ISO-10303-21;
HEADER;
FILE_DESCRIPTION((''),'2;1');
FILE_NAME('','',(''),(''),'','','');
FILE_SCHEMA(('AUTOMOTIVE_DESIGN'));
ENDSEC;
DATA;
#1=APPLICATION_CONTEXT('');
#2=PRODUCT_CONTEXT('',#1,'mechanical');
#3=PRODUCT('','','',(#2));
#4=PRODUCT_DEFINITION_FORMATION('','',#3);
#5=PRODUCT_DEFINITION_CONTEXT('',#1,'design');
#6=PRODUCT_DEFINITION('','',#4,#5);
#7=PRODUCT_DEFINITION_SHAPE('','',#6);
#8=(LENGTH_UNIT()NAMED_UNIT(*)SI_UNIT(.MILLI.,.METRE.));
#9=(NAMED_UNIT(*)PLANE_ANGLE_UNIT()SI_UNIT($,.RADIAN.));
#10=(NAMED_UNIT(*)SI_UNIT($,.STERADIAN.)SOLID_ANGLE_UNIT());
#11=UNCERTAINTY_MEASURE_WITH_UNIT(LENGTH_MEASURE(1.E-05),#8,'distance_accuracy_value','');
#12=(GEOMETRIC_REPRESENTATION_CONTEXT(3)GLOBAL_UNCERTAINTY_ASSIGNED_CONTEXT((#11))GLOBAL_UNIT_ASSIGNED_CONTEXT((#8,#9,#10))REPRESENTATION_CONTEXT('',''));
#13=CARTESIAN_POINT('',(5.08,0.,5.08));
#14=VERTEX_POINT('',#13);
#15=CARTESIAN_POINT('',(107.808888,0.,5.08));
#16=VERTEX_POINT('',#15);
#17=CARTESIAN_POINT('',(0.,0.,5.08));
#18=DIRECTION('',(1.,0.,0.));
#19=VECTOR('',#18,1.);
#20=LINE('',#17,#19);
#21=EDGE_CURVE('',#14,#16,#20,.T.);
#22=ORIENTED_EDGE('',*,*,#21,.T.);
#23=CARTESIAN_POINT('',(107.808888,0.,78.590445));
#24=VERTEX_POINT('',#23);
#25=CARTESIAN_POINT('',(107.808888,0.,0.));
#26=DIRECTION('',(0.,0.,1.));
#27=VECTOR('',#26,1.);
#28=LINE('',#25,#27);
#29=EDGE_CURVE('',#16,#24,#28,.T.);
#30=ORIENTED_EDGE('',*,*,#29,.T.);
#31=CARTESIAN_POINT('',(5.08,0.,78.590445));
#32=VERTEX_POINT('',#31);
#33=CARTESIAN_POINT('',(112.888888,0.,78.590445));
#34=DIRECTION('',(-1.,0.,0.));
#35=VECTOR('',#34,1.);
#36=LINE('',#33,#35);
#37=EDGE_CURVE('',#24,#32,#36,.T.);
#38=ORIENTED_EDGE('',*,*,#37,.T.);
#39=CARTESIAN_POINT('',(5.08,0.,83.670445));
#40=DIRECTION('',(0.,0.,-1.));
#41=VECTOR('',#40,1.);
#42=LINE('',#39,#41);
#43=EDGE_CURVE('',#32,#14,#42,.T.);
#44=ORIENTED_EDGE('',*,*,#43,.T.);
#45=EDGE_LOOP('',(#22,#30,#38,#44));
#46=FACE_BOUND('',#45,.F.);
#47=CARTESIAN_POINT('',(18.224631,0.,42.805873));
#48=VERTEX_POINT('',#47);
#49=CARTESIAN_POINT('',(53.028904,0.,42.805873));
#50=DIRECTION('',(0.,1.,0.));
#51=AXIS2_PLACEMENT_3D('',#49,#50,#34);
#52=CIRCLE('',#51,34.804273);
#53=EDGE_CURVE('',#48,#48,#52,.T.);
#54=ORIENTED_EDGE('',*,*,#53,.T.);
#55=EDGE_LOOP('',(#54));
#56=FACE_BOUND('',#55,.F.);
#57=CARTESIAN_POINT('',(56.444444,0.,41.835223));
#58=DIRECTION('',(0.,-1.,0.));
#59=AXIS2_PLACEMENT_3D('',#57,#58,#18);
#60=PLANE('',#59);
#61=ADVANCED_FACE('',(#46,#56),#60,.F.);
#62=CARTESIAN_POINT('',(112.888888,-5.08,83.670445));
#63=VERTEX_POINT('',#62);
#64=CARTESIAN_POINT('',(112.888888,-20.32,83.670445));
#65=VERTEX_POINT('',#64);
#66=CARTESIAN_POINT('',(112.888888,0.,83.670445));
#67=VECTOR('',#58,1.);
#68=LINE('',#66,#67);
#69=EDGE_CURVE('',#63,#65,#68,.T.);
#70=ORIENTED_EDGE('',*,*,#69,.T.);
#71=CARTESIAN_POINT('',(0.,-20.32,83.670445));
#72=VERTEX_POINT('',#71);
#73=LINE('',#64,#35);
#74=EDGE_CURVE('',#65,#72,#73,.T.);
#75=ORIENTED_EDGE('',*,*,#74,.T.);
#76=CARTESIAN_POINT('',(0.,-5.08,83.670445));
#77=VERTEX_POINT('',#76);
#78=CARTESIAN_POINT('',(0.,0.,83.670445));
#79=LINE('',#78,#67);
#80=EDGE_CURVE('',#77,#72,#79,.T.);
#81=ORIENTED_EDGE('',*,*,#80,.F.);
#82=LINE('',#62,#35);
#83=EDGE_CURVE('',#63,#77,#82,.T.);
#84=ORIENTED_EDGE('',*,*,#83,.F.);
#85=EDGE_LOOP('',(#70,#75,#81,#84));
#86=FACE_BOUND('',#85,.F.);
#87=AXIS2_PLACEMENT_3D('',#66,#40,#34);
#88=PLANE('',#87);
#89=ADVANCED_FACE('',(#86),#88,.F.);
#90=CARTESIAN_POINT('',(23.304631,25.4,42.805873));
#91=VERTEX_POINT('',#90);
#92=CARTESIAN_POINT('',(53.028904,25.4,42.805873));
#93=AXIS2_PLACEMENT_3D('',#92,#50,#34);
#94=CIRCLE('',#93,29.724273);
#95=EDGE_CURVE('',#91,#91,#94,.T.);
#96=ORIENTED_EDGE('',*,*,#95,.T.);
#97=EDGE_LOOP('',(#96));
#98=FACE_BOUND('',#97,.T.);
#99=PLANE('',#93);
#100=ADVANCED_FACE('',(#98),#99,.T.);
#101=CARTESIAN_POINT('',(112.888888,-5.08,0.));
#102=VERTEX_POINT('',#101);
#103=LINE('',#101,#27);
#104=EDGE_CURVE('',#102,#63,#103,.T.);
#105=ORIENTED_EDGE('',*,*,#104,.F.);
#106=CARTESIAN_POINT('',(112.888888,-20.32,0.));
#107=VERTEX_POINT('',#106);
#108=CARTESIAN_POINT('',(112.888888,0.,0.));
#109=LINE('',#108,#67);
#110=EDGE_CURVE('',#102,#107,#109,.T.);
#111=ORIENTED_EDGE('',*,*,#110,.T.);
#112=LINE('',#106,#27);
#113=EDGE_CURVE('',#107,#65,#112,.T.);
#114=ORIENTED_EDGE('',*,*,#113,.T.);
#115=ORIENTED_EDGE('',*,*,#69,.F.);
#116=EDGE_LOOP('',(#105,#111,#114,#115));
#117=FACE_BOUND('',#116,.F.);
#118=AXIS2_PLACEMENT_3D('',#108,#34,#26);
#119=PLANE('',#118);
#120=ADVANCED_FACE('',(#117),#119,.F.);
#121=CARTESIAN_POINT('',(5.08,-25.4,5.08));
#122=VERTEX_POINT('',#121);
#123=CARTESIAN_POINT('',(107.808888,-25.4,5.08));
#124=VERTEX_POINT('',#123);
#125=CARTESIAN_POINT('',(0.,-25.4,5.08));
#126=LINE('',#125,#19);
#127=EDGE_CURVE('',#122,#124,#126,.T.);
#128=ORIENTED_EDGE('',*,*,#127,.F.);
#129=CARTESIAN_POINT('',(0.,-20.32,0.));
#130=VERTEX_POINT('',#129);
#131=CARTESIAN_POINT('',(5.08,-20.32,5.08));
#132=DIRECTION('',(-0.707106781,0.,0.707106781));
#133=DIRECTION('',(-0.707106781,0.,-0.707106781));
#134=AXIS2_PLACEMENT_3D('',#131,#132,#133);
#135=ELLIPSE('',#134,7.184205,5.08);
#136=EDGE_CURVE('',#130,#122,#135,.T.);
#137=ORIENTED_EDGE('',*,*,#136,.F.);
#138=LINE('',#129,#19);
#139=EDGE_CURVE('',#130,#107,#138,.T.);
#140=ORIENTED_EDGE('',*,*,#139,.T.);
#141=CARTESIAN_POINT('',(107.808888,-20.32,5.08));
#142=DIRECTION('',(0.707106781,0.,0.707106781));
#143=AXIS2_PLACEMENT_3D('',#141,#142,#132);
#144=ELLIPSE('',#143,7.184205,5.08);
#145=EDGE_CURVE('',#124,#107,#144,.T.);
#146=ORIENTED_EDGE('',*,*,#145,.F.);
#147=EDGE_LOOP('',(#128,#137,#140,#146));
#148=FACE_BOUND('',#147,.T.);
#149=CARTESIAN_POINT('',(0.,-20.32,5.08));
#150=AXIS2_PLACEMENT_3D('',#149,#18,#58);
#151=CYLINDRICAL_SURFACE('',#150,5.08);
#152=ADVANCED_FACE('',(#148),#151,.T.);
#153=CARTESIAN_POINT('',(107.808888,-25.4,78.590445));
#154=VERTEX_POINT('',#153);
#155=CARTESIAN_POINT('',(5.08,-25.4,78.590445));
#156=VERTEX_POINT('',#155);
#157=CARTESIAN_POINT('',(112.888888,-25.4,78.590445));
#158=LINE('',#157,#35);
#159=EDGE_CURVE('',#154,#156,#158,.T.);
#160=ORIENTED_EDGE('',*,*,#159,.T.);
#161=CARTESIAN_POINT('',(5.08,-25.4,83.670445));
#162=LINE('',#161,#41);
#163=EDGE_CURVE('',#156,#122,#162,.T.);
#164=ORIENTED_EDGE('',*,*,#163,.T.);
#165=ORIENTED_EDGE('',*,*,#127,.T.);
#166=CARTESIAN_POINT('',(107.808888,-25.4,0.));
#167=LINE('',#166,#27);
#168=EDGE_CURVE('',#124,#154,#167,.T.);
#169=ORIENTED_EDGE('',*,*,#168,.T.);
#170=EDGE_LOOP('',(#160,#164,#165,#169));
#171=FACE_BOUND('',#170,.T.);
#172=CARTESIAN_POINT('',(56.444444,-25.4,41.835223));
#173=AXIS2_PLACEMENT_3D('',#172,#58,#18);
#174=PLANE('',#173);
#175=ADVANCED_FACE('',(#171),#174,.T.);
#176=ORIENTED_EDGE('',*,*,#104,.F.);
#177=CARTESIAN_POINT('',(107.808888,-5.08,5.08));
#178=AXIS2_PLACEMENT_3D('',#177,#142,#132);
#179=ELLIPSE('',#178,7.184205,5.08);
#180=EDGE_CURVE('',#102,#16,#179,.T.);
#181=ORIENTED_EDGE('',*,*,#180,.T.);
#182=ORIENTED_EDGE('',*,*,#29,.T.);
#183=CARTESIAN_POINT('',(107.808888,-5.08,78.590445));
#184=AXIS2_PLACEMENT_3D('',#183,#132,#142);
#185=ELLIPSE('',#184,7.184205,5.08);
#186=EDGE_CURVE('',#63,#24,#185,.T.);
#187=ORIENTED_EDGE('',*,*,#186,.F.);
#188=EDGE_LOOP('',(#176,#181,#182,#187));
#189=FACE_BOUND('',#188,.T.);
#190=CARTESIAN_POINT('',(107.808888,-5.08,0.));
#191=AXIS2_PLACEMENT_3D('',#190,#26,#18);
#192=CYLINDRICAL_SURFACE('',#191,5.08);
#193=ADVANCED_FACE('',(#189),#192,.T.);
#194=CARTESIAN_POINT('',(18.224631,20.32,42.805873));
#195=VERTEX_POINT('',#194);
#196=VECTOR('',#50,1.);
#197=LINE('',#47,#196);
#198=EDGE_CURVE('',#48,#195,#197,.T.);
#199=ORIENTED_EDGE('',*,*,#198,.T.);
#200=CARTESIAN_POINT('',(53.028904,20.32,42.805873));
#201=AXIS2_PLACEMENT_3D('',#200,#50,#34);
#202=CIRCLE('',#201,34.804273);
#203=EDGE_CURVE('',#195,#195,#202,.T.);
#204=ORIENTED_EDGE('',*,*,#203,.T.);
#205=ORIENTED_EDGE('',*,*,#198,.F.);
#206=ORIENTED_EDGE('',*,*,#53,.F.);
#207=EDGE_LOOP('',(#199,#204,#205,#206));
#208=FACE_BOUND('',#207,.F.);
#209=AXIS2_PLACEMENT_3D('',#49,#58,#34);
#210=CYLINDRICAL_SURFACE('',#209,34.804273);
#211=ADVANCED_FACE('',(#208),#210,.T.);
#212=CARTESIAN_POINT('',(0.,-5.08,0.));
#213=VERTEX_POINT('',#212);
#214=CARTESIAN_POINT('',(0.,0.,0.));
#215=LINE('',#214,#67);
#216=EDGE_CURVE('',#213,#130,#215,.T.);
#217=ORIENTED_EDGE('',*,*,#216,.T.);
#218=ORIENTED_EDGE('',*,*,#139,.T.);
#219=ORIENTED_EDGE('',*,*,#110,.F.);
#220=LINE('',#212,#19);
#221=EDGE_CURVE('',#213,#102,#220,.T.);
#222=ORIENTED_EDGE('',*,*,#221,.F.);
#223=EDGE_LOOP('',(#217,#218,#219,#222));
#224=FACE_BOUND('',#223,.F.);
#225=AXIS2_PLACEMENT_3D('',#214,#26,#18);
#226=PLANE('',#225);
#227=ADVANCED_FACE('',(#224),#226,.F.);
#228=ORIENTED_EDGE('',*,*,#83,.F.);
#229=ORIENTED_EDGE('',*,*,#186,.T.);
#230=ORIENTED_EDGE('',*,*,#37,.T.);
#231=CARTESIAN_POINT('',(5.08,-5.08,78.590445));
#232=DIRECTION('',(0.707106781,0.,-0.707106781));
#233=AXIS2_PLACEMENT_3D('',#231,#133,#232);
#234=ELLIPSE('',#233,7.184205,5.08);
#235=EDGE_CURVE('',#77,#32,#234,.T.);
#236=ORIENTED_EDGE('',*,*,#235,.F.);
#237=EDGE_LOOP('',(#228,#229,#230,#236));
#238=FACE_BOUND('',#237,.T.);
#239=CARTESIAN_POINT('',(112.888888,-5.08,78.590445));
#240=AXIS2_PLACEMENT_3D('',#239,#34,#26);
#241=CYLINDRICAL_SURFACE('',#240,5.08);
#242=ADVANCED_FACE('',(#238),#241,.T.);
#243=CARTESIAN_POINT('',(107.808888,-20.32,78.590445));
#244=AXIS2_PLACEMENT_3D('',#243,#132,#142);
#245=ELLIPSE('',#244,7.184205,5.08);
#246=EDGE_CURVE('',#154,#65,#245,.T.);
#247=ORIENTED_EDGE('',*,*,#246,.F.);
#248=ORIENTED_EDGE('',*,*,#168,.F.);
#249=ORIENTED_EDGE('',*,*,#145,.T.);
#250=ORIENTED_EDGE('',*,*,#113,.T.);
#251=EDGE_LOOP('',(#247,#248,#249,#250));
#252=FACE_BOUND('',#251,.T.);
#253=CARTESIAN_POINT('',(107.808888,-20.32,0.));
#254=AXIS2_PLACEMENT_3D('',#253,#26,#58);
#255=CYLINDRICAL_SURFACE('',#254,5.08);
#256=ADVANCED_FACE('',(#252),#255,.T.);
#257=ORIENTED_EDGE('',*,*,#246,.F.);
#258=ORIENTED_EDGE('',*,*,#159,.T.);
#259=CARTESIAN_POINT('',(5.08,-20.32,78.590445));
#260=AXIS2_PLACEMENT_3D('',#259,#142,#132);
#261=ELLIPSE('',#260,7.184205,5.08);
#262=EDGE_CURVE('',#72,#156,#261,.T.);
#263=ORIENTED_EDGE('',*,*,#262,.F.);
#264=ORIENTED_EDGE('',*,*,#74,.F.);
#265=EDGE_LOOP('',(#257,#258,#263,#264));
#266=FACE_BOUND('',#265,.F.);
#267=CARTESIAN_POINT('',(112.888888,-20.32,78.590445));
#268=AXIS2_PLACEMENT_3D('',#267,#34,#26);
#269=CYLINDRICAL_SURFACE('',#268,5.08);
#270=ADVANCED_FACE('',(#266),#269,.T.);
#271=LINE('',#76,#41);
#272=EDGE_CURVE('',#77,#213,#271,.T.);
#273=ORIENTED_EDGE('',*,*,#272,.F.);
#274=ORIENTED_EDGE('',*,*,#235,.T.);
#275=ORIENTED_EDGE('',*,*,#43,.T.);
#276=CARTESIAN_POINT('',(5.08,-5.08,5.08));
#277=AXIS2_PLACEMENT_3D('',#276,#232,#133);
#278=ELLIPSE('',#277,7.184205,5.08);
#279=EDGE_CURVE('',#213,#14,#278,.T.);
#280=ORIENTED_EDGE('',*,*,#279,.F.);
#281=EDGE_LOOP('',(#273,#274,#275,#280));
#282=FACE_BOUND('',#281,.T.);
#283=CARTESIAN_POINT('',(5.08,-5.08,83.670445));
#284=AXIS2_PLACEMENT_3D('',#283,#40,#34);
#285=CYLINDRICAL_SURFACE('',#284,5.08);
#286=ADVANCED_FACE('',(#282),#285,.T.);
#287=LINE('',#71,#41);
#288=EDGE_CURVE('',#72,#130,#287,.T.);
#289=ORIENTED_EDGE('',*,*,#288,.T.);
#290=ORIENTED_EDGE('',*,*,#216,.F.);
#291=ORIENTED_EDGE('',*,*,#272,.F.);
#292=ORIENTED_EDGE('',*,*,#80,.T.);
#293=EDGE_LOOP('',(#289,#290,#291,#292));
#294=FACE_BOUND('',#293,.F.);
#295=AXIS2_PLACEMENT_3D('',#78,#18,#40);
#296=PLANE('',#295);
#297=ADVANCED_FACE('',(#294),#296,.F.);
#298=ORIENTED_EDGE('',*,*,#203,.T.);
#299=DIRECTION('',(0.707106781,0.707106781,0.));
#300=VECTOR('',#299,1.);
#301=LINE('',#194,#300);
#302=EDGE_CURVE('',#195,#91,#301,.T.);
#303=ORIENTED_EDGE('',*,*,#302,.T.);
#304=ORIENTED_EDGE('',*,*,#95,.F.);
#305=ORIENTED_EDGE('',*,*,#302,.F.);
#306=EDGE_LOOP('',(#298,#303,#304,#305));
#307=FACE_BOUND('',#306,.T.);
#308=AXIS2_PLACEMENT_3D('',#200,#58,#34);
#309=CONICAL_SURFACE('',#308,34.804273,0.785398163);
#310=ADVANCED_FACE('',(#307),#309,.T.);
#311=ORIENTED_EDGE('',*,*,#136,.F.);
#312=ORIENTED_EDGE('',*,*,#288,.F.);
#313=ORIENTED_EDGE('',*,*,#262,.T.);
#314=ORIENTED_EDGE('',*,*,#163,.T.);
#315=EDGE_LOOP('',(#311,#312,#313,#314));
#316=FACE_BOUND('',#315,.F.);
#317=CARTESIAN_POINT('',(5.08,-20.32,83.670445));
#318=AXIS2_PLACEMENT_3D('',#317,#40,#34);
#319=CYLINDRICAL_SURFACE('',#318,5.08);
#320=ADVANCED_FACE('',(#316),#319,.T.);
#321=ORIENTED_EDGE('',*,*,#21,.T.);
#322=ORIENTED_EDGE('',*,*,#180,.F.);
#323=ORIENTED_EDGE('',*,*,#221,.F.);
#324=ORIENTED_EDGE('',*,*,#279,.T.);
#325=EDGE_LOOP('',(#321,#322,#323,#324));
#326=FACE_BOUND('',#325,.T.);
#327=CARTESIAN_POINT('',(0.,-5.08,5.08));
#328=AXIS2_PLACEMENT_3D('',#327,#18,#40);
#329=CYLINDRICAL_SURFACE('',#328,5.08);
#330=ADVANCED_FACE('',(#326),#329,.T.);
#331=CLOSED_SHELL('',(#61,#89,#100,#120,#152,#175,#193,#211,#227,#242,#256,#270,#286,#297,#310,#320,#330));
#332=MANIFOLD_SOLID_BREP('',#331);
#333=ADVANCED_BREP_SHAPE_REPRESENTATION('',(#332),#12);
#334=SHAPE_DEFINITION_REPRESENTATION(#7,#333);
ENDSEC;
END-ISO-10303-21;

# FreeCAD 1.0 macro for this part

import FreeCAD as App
import Part
import Sketcher
from FreeCAD import Vector
Q = App.Units.Quantity


def edges_at(feature, points):
    """Names of the edges that pass closest to the given points."""
    edges = feature.Shape.Edges
    near = lambda p: min(range(len(edges)), key=lambda i: edges[i].distToShape(Part.Vertex(*p))[0])
    return sorted({f"Edge{near(p) + 1}" for p in points})


def add_polygon(sketch, points):
    """Adds a closed chain of lines whose ends are joined by coincident constraints."""
    first, n = sketch.GeometryCount, len(points)
    for a, b in zip(points, points[1:] + points[:1]):
        sketch.addGeometry(Part.LineSegment(App.Vector(*a, 0), App.Vector(*b, 0)), False)
    for i in range(n):
        sketch.addConstraint(Sketcher.Constraint("Coincident", first + i, 2, first + (i + 1) % n, 1))

doc = App.newDocument("Part")
body = doc.addObject("PartDesign::Body", "Body")

# Sketch on XZ plane
sketch1 = body.newObject("Sketcher::SketchObject", "Sketch")
sketch1.AttachmentSupport = (doc.getObject("XZ_Plane"), [""])
sketch1.MapMode = "FlatFace"
add_polygon(sketch1, [(0, 83.670445), (0, 0), (112.888888, 0), (112.888888, 83.670445)])  # lines 0-3
sketch1.addConstraint([
    Sketcher.Constraint("Vertical", 0),
    Sketcher.Constraint("Horizontal", 1),
    Sketcher.Constraint("Vertical", 2),
    Sketcher.Constraint("Horizontal", 3),
    Sketcher.Constraint("Coincident", 0, 2, -1, 1),
    Sketcher.Constraint("DistanceX", 1, 1, 1, 2, Q("112.888888 mm")),
    Sketcher.Constraint("DistanceY", 0, 2, 0, 1, Q("83.670445 mm")),
])
pad1 = body.newObject("PartDesign::Pad", "Pad")
pad1.Profile = sketch1
pad1.Length = Q("1 in")
doc.recompute()

fillet = body.newObject("PartDesign::Fillet", "Fillet")
fillet.Base = (pad1, edges_at(pad1, [
    (112.889, 0, 41.835),
    (0, 0, 41.835),
    (56.444, 0, 0),
    (56.444, 0, 83.67),
]))
fillet.Radius = Q("0.2 in")
doc.recompute()

fillet2 = body.newObject("PartDesign::Fillet", "Fillet001")
fillet2.Base = (fillet, edges_at(fillet, [
    (112.889, -25.4, 41.835),
    (56.444, -25.4, 83.67),
    (0, -25.4, 41.835),
    (56.444, -25.4, 0),
]))
fillet2.Radius = Q("0.2 in")

# Sketch on XZ plane
sketch2 = body.newObject("Sketcher::SketchObject", "Sketch001")
sketch2.AttachmentSupport = (doc.getObject("XZ_Plane"), [""])
sketch2.MapMode = "FlatFace"
sketch2.addGeometry(Part.Circle(Vector(53.028904, 42.805873, 0), Vector(0, 0, 1), 34.804273), False)
sketch2.addConstraint([
    Sketcher.Constraint("Diameter", 0, Q("69.608546 mm")),
    Sketcher.Constraint("DistanceX", -1, 1, 0, 3, Q("53.028904 mm")),
    Sketcher.Constraint("DistanceY", -1, 1, 0, 3, Q("42.805873 mm")),
])
pad2 = body.newObject("PartDesign::Pad", "Pad001")
pad2.Profile = sketch2
pad2.Length = Q("1 in")
pad2.Reversed = True
doc.recompute()

chamfer = body.newObject("PartDesign::Chamfer", "Chamfer")
chamfer.Base = (pad2, edges_at(pad2, [(87.833, 25.4, 42.806)]))
chamfer.Size = Q("0.2 in")

doc.recompute()
